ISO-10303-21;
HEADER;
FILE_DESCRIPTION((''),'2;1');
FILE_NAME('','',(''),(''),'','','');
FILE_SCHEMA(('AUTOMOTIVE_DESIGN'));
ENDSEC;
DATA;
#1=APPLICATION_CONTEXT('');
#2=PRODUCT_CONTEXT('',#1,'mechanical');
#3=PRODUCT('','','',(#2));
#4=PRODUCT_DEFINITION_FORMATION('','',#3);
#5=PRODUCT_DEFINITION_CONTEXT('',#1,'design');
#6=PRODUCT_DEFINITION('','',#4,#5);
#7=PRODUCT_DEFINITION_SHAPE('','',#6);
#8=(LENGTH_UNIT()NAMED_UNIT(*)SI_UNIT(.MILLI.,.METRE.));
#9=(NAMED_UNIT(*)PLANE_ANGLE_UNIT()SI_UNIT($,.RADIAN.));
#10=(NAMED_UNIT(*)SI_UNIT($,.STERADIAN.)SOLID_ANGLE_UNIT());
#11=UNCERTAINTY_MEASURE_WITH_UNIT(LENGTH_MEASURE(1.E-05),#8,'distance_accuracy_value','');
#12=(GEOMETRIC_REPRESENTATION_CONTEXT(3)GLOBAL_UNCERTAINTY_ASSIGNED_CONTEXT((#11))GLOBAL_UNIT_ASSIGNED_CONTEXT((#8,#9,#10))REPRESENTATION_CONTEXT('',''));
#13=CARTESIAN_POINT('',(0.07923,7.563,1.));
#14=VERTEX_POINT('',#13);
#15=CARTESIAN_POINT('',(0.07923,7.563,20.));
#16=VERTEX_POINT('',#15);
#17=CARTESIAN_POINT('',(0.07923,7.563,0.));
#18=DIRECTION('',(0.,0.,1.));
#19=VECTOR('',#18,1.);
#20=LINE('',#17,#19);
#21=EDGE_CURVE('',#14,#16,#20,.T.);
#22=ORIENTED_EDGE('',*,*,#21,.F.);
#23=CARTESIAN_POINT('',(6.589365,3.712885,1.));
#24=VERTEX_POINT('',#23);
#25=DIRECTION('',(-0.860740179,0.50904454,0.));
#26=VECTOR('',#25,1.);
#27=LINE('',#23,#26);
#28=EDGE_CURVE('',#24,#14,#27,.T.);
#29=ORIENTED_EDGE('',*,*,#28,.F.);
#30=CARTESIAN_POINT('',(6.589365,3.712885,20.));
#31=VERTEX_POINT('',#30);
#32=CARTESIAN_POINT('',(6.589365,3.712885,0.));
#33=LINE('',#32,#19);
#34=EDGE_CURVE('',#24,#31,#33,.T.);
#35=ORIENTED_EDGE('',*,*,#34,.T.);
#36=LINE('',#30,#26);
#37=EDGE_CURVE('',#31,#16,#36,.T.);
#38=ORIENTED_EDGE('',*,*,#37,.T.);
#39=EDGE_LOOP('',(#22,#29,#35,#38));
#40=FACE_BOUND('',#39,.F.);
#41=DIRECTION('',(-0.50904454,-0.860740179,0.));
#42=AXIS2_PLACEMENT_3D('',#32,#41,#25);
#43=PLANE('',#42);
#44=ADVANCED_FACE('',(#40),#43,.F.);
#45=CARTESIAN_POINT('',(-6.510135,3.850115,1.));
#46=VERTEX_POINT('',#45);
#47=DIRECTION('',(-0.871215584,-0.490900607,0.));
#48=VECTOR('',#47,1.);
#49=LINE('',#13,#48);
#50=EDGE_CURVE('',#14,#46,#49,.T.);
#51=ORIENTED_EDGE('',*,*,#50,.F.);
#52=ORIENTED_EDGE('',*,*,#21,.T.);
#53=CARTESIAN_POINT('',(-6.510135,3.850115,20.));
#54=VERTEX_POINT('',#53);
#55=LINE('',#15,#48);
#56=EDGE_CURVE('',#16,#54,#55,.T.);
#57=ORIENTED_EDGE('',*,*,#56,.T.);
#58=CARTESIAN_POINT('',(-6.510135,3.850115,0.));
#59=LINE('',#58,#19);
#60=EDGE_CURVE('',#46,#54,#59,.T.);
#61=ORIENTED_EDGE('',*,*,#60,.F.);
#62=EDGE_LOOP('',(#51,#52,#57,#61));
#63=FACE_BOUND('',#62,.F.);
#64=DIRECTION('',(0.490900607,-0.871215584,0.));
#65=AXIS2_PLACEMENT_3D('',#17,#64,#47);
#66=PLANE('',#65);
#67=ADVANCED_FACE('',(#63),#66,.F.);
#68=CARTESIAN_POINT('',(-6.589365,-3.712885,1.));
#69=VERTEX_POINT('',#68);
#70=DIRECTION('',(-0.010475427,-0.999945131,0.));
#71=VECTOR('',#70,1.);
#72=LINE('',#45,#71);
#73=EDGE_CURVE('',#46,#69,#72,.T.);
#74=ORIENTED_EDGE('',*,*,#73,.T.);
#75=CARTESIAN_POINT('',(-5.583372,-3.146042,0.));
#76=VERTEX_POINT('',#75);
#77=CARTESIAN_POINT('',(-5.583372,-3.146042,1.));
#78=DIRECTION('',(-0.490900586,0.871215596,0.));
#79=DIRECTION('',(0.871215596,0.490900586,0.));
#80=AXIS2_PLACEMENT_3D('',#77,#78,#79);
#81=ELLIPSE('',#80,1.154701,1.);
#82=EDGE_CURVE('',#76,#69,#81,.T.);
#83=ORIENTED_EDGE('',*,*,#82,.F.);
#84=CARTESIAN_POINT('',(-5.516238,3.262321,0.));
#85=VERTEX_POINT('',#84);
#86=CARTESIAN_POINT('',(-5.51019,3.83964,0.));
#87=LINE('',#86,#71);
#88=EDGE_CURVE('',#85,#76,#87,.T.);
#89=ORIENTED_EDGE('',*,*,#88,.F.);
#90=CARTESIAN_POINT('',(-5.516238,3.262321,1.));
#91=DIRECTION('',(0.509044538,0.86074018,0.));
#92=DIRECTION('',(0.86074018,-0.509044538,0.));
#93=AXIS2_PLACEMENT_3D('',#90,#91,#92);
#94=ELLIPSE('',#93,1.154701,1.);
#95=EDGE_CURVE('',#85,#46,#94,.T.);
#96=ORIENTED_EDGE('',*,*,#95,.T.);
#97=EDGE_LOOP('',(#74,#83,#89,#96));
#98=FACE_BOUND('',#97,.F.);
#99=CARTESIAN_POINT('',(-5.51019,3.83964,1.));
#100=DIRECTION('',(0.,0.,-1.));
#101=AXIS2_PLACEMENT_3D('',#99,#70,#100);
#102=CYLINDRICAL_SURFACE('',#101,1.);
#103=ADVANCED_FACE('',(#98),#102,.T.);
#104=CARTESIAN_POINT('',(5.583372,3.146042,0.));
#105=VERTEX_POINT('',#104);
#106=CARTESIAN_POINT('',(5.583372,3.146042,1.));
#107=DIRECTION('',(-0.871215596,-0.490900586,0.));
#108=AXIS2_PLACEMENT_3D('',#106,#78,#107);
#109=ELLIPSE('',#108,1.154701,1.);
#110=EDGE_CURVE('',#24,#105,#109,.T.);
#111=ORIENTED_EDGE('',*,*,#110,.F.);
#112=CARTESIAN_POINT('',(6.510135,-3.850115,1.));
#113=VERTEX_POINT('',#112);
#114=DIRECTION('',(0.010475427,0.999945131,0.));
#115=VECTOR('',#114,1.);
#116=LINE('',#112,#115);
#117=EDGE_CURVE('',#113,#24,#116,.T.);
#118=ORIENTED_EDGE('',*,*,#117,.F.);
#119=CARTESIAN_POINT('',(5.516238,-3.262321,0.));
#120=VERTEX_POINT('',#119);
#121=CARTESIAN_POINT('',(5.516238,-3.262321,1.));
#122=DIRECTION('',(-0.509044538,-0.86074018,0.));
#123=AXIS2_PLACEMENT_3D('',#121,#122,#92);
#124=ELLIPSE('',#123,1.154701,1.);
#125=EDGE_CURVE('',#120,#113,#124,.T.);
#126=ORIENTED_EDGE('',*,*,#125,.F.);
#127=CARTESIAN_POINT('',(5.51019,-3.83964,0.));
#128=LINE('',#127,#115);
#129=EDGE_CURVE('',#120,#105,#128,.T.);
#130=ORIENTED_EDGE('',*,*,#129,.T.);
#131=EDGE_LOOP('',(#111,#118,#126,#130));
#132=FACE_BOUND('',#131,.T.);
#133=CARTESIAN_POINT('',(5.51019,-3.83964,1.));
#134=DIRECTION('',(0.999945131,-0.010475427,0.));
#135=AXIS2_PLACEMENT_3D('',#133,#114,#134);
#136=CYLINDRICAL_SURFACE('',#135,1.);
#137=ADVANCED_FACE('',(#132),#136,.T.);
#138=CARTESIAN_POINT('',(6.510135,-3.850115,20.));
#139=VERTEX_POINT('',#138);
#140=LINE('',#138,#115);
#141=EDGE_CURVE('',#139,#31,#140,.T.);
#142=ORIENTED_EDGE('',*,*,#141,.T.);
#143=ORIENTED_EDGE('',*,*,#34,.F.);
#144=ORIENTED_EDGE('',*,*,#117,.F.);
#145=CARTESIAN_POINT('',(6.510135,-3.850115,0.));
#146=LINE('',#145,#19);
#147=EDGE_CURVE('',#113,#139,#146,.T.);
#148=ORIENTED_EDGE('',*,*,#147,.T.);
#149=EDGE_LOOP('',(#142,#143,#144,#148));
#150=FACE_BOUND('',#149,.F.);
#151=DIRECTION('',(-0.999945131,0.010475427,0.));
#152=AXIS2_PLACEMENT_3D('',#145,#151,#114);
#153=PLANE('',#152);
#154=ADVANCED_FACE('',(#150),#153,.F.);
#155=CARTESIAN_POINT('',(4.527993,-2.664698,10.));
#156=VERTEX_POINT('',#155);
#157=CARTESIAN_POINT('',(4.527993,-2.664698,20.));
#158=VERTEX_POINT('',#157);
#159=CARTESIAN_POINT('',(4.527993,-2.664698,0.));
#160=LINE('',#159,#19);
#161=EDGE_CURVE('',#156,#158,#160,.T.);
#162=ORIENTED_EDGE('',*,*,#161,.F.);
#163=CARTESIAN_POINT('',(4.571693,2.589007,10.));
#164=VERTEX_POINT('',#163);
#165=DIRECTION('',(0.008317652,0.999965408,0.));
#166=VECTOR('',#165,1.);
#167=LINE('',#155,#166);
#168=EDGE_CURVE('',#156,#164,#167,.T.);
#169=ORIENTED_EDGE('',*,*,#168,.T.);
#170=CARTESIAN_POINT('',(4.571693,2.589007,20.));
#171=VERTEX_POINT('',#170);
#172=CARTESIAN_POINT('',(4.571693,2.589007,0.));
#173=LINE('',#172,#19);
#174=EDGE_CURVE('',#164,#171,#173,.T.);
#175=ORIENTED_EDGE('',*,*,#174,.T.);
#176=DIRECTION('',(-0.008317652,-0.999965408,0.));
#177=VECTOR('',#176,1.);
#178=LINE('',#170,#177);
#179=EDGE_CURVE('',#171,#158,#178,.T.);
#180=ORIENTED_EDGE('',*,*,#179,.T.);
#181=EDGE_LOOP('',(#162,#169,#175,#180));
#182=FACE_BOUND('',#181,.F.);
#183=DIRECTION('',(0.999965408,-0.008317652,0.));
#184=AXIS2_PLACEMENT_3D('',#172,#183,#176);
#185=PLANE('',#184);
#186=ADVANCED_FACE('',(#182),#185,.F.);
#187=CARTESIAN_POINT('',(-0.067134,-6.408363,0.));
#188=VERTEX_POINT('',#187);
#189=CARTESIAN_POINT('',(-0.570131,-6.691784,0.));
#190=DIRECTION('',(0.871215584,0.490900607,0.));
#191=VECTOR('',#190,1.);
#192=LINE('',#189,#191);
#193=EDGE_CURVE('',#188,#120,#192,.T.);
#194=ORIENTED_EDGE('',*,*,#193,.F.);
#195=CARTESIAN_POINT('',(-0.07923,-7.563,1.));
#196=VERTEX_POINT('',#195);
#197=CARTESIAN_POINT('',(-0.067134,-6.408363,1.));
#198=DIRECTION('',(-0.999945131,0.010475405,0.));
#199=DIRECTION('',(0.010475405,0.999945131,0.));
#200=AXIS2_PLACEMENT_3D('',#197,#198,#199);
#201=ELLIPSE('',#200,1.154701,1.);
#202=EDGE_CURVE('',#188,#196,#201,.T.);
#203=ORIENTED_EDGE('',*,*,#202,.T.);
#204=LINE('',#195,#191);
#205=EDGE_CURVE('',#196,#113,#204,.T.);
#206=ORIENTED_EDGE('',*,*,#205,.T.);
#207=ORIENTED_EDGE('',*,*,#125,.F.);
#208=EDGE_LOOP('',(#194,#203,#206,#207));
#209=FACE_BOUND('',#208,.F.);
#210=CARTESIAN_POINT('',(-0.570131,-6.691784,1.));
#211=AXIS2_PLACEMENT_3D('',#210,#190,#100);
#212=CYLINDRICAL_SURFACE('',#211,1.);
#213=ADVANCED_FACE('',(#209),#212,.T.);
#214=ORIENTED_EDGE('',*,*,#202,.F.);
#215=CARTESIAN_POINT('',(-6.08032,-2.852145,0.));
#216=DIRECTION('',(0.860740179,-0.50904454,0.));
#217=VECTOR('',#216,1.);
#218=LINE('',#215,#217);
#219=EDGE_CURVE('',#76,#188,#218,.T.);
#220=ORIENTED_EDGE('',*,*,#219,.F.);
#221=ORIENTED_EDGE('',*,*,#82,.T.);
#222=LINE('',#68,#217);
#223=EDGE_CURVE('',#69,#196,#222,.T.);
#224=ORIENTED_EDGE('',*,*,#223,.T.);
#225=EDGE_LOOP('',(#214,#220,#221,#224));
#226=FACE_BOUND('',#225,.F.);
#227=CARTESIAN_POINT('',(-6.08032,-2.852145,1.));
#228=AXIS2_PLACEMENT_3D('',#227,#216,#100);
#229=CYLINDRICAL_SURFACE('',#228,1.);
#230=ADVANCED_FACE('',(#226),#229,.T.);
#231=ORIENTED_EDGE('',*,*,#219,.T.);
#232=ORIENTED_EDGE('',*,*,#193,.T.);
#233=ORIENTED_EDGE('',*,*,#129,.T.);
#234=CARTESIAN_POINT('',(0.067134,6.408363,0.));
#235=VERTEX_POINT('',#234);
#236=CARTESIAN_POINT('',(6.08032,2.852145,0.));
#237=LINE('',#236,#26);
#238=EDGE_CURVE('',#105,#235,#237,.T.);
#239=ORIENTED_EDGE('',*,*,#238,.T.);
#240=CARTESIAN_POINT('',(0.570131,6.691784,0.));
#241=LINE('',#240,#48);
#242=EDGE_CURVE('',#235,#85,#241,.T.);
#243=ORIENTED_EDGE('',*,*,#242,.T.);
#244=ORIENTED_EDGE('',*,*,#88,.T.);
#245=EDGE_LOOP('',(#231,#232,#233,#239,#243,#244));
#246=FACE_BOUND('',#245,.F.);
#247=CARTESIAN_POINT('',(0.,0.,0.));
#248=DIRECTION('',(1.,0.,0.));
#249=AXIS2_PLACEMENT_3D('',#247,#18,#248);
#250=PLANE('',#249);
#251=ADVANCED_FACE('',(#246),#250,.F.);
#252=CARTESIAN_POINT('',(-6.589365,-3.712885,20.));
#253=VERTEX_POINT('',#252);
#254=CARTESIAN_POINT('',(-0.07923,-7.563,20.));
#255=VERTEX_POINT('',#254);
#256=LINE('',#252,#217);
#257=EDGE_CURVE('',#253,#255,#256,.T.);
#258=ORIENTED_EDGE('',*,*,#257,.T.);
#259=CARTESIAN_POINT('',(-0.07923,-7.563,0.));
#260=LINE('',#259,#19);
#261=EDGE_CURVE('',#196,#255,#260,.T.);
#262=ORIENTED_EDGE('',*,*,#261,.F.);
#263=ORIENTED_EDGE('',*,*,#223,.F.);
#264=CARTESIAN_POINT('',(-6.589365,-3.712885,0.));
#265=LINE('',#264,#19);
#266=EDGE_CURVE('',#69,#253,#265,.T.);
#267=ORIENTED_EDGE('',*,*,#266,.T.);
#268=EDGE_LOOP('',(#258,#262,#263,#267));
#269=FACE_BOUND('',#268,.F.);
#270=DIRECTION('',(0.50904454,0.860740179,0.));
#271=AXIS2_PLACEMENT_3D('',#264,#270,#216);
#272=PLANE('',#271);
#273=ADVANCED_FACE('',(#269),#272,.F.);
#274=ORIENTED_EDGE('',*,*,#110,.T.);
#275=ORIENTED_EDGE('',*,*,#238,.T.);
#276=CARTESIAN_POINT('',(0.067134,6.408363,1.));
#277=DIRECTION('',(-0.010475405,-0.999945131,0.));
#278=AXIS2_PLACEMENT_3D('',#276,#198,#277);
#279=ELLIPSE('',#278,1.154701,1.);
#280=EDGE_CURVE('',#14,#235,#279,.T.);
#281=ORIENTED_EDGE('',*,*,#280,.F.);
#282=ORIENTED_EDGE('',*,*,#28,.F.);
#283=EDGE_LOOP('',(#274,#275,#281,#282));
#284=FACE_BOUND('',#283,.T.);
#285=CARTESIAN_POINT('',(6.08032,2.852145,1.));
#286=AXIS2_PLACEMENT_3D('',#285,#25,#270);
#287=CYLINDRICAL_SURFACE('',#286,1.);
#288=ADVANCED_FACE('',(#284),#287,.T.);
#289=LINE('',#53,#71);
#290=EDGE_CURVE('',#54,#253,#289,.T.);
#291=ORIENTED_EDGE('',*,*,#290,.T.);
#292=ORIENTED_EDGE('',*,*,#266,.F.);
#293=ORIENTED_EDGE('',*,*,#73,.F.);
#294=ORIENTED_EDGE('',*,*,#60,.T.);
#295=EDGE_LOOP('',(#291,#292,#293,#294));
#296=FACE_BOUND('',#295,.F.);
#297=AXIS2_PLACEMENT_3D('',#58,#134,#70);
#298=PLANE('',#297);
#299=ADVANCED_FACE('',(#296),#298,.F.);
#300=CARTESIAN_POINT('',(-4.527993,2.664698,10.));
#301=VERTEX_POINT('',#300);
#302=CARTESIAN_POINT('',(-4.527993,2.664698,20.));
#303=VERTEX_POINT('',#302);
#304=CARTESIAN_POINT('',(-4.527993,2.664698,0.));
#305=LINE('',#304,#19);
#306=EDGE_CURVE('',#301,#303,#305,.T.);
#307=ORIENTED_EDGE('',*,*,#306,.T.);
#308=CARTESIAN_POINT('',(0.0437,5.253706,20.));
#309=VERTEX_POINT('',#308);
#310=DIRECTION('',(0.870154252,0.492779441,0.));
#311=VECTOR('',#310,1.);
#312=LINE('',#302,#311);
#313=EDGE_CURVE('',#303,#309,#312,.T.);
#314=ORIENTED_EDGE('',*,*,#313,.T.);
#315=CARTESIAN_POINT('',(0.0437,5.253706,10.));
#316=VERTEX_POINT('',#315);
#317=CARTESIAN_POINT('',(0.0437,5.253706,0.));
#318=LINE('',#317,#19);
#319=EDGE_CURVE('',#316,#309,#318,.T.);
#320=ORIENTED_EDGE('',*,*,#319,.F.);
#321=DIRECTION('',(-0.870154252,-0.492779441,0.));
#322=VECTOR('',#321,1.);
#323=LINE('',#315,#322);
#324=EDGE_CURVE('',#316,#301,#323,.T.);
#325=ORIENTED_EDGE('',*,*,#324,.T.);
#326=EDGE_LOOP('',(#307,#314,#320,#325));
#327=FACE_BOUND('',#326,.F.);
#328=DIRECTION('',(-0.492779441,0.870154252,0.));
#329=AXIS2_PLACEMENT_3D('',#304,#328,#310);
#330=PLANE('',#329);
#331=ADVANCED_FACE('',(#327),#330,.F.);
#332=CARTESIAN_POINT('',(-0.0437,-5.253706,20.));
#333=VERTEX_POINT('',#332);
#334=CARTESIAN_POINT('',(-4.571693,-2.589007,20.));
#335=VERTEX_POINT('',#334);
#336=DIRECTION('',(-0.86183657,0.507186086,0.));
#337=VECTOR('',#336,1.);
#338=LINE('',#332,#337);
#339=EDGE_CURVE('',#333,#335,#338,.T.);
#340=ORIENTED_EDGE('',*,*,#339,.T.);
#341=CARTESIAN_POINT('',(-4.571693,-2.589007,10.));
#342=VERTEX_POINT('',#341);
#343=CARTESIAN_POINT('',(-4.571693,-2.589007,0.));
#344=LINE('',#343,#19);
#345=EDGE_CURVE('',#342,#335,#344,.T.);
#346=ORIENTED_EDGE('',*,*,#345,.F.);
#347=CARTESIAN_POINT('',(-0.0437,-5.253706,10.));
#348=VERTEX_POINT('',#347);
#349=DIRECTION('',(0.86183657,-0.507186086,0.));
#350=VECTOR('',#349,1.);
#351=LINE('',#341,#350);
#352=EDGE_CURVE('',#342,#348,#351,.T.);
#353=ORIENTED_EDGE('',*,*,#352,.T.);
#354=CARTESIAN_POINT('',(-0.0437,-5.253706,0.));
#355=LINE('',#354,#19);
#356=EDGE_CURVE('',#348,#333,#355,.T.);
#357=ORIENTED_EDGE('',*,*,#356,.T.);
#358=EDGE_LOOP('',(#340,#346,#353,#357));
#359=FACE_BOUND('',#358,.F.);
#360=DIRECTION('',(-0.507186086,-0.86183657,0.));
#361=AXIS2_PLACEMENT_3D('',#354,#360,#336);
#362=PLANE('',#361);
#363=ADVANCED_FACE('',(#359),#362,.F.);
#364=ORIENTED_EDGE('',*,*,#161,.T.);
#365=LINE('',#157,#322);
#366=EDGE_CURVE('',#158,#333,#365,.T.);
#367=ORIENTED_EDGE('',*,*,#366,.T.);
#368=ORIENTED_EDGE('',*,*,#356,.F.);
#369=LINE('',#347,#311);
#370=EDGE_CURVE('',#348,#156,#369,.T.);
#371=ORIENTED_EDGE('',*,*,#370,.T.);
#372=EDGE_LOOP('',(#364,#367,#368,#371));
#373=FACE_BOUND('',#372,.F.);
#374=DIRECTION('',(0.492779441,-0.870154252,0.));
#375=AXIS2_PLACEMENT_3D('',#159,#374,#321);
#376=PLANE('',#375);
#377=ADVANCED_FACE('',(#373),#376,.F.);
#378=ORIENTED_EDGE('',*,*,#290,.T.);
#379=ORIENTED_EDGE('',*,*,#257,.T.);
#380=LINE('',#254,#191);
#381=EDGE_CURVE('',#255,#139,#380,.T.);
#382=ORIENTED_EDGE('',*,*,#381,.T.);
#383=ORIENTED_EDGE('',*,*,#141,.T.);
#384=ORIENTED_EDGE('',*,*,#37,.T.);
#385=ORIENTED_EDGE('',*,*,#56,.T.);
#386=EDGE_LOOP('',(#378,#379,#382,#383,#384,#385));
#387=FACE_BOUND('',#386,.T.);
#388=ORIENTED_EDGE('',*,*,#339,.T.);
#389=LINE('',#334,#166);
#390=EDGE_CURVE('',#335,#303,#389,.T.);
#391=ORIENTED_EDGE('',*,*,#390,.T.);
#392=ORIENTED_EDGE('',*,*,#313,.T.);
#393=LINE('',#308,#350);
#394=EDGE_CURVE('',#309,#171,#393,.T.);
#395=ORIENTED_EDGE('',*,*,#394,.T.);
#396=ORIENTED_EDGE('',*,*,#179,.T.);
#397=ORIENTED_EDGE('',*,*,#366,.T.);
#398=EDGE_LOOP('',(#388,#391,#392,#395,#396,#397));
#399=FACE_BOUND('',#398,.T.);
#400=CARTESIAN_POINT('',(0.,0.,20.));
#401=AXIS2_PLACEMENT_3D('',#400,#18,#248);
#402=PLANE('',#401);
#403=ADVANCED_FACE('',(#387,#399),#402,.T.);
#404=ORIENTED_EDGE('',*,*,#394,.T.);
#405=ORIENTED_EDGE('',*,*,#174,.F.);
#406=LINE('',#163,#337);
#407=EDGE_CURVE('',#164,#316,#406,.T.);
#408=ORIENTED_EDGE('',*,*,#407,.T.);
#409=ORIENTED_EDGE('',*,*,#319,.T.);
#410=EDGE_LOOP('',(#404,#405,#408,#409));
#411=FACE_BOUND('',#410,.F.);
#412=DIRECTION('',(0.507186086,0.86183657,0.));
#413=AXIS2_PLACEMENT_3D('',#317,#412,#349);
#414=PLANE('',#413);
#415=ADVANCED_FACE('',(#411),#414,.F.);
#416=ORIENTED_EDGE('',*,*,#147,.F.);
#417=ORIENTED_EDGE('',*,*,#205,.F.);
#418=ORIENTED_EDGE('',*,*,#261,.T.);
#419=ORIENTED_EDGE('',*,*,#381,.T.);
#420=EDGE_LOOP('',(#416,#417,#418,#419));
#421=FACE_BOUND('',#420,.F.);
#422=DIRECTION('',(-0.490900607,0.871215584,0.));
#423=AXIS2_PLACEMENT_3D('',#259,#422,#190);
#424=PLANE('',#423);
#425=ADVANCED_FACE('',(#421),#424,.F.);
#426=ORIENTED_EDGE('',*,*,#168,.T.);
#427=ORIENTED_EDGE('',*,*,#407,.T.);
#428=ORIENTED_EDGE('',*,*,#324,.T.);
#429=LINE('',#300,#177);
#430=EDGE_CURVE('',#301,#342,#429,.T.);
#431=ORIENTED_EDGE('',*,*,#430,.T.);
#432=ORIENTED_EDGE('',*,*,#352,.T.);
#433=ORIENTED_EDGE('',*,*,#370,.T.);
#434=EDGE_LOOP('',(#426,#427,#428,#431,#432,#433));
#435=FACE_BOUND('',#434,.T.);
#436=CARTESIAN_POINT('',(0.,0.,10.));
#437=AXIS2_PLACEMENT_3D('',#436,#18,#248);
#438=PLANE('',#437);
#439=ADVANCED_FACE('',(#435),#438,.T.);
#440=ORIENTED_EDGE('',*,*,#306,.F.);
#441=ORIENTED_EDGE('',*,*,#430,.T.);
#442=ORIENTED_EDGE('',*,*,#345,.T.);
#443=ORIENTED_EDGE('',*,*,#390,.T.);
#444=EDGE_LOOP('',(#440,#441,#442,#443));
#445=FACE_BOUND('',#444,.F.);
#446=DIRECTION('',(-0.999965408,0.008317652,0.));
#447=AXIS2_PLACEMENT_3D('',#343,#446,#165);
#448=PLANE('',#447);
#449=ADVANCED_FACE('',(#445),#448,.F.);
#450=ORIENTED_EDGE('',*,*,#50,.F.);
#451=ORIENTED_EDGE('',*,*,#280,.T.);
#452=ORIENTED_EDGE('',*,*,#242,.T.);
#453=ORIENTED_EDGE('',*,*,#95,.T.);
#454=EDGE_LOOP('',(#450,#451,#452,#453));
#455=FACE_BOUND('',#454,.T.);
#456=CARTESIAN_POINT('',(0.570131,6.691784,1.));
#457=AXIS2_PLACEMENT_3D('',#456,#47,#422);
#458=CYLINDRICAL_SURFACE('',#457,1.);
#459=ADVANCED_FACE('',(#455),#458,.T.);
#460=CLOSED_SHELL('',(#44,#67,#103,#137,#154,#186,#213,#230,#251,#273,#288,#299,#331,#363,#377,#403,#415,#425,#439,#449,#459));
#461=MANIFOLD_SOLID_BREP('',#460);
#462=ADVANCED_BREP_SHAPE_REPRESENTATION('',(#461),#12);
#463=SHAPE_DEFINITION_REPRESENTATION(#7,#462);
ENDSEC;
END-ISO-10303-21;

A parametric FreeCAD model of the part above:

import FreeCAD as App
import Part
import Sketcher
from FreeCAD import Vector
Q = App.Units.Quantity


def edges_at(feature, points):
    """Names of the edges that pass closest to the given points."""
    edges = feature.Shape.Edges
    near = lambda p: min(range(len(edges)), key=lambda i: edges[i].distToShape(Part.Vertex(*p))[0])
    return sorted({f"Edge{near(p) + 1}" for p in points})


def add_polygon(sketch, points):
    """Adds a closed chain of lines whose ends are joined by coincident constraints."""
    first, n = sketch.GeometryCount, len(points)
    for a, b in zip(points, points[1:] + points[:1]):
        sketch.addGeometry(Part.LineSegment(App.Vector(*a, 0), App.Vector(*b, 0)), False)
    for i in range(n):
        sketch.addConstraint(Sketcher.Constraint("Coincident", first + i, 2, first + (i + 1) % n, 1))

doc = App.newDocument("Part")
body = doc.addObject("PartDesign::Body", "Body")

# Sketch on XY plane
sketch1 = body.newObject("Sketcher::SketchObject", "Sketch")
sketch1.AttachmentSupport = (doc.getObject("XY_Plane"), [""])
sketch1.MapMode = "FlatFace"
add_polygon(sketch1, [(4.571693, 2.589007), (0.0437, 5.253706), (-4.527993, 2.664698), (-4.571693, -2.589007), (-0.0437, -5.253706), (4.527993, -2.664698)])  # lines 0-5
sketch1.addConstraint([
    Sketcher.Constraint("Symmetric", 0, 2, 3, 2, -1, 1),
    Sketcher.Constraint("Symmetric", 1, 2, 4, 2, -1, 1),
    Sketcher.Constraint("Symmetric", 2, 2, 5, 2, -1, 1),
    Sketcher.Constraint("Equal", 0, 1),
    Sketcher.Constraint("Equal", 1, 2),
    Sketcher.Constraint("DistanceX", -1, 1, 0, 2, Q("0.0437 mm")),
    Sketcher.Constraint("DistanceY", -1, 1, 1, 2, Q("2.664698 mm")),
    Sketcher.Constraint("DistanceX", 2, 2, 1, 2, Q("0.0437 mm")),
    Sketcher.Constraint("DistanceY", 3, 2, 2, 2, Q("2.664699 mm")),
])
pad1 = body.newObject("PartDesign::Pad", "Pad")
pad1.Profile = sketch1
pad1.Length = 10

# Sketch on XY plane
sketch2 = body.newObject("Sketcher::SketchObject", "Sketch001")
sketch2.AttachmentSupport = (doc.getObject("XY_Plane"), [""])
sketch2.MapMode = "FlatFace"
add_polygon(sketch2, [(6.589365, 3.712885), (0.07923, 7.563), (-6.510135, 3.850115), (-6.589365, -3.712885), (-0.07923, -7.563), (6.510135, -3.850115)])  # lines 0-5
add_polygon(sketch2, [(-4.571693, -2.589007), (-4.527993, 2.664698), (0.0437, 5.253706), (4.571693, 2.589007), (4.527993, -2.664698), (-0.0437, -5.253706)])  # lines 6-11
sketch2.addConstraint([
    Sketcher.Constraint("Symmetric", 0, 2, 3, 2, -1, 1),
    Sketcher.Constraint("Symmetric", 1, 2, 4, 2, -1, 1),
    Sketcher.Constraint("Symmetric", 2, 2, 5, 2, -1, 1),
    Sketcher.Constraint("Symmetric", 6, 2, 9, 2, -1, 1),
    Sketcher.Constraint("Symmetric", 7, 2, 10, 2, -1, 1),
    Sketcher.Constraint("Symmetric", 8, 2, 11, 2, -1, 1),
    Sketcher.Constraint("Equal", 0, 1),
    Sketcher.Constraint("Equal", 1, 2),
    Sketcher.Constraint("Equal", 6, 7),
    Sketcher.Constraint("Equal", 7, 8),
    Sketcher.Constraint("DistanceY", -1, 1, 0, 2, Q("7.563 mm")),
    Sketcher.Constraint("DistanceY", 2, 2, 1, 2, Q("7.563 mm")),
    Sketcher.Constraint("DistanceY", -1, 1, 6, 2, Q("2.664698 mm")),
    Sketcher.Constraint("DistanceX", -1, 1, 7, 2, Q("0.0437 mm")),
    Sketcher.Constraint("DistanceX", 2, 2, 4, 2, Q("13.0995 mm")),
    Sketcher.Constraint("DistanceY", 8, 2, 7, 2, Q("2.664699 mm")),
    Sketcher.Constraint("DistanceX", 9, 2, 8, 2, Q("0.0437 mm")),
    Sketcher.Constraint("DistanceX", -1, 1, 0, 2, Q("0.07923 mm")),
])
pad2 = body.newObject("PartDesign::Pad", "Pad001")
pad2.Profile = sketch2
pad2.Length = 20
doc.recompute()

fillet = body.newObject("PartDesign::Fillet", "Fillet")
fillet.Base = (pad2, edges_at(pad2, [
    (3.215, -5.707, 0),
    (-3.334, -5.638, 0),
    (-6.55, 0.069, 0),
    (-3.215, 5.707, 0),
    (3.334, 5.638, 0),
    (6.55, -0.069, 0),
]))
fillet.Radius = 1

doc.recompute()
